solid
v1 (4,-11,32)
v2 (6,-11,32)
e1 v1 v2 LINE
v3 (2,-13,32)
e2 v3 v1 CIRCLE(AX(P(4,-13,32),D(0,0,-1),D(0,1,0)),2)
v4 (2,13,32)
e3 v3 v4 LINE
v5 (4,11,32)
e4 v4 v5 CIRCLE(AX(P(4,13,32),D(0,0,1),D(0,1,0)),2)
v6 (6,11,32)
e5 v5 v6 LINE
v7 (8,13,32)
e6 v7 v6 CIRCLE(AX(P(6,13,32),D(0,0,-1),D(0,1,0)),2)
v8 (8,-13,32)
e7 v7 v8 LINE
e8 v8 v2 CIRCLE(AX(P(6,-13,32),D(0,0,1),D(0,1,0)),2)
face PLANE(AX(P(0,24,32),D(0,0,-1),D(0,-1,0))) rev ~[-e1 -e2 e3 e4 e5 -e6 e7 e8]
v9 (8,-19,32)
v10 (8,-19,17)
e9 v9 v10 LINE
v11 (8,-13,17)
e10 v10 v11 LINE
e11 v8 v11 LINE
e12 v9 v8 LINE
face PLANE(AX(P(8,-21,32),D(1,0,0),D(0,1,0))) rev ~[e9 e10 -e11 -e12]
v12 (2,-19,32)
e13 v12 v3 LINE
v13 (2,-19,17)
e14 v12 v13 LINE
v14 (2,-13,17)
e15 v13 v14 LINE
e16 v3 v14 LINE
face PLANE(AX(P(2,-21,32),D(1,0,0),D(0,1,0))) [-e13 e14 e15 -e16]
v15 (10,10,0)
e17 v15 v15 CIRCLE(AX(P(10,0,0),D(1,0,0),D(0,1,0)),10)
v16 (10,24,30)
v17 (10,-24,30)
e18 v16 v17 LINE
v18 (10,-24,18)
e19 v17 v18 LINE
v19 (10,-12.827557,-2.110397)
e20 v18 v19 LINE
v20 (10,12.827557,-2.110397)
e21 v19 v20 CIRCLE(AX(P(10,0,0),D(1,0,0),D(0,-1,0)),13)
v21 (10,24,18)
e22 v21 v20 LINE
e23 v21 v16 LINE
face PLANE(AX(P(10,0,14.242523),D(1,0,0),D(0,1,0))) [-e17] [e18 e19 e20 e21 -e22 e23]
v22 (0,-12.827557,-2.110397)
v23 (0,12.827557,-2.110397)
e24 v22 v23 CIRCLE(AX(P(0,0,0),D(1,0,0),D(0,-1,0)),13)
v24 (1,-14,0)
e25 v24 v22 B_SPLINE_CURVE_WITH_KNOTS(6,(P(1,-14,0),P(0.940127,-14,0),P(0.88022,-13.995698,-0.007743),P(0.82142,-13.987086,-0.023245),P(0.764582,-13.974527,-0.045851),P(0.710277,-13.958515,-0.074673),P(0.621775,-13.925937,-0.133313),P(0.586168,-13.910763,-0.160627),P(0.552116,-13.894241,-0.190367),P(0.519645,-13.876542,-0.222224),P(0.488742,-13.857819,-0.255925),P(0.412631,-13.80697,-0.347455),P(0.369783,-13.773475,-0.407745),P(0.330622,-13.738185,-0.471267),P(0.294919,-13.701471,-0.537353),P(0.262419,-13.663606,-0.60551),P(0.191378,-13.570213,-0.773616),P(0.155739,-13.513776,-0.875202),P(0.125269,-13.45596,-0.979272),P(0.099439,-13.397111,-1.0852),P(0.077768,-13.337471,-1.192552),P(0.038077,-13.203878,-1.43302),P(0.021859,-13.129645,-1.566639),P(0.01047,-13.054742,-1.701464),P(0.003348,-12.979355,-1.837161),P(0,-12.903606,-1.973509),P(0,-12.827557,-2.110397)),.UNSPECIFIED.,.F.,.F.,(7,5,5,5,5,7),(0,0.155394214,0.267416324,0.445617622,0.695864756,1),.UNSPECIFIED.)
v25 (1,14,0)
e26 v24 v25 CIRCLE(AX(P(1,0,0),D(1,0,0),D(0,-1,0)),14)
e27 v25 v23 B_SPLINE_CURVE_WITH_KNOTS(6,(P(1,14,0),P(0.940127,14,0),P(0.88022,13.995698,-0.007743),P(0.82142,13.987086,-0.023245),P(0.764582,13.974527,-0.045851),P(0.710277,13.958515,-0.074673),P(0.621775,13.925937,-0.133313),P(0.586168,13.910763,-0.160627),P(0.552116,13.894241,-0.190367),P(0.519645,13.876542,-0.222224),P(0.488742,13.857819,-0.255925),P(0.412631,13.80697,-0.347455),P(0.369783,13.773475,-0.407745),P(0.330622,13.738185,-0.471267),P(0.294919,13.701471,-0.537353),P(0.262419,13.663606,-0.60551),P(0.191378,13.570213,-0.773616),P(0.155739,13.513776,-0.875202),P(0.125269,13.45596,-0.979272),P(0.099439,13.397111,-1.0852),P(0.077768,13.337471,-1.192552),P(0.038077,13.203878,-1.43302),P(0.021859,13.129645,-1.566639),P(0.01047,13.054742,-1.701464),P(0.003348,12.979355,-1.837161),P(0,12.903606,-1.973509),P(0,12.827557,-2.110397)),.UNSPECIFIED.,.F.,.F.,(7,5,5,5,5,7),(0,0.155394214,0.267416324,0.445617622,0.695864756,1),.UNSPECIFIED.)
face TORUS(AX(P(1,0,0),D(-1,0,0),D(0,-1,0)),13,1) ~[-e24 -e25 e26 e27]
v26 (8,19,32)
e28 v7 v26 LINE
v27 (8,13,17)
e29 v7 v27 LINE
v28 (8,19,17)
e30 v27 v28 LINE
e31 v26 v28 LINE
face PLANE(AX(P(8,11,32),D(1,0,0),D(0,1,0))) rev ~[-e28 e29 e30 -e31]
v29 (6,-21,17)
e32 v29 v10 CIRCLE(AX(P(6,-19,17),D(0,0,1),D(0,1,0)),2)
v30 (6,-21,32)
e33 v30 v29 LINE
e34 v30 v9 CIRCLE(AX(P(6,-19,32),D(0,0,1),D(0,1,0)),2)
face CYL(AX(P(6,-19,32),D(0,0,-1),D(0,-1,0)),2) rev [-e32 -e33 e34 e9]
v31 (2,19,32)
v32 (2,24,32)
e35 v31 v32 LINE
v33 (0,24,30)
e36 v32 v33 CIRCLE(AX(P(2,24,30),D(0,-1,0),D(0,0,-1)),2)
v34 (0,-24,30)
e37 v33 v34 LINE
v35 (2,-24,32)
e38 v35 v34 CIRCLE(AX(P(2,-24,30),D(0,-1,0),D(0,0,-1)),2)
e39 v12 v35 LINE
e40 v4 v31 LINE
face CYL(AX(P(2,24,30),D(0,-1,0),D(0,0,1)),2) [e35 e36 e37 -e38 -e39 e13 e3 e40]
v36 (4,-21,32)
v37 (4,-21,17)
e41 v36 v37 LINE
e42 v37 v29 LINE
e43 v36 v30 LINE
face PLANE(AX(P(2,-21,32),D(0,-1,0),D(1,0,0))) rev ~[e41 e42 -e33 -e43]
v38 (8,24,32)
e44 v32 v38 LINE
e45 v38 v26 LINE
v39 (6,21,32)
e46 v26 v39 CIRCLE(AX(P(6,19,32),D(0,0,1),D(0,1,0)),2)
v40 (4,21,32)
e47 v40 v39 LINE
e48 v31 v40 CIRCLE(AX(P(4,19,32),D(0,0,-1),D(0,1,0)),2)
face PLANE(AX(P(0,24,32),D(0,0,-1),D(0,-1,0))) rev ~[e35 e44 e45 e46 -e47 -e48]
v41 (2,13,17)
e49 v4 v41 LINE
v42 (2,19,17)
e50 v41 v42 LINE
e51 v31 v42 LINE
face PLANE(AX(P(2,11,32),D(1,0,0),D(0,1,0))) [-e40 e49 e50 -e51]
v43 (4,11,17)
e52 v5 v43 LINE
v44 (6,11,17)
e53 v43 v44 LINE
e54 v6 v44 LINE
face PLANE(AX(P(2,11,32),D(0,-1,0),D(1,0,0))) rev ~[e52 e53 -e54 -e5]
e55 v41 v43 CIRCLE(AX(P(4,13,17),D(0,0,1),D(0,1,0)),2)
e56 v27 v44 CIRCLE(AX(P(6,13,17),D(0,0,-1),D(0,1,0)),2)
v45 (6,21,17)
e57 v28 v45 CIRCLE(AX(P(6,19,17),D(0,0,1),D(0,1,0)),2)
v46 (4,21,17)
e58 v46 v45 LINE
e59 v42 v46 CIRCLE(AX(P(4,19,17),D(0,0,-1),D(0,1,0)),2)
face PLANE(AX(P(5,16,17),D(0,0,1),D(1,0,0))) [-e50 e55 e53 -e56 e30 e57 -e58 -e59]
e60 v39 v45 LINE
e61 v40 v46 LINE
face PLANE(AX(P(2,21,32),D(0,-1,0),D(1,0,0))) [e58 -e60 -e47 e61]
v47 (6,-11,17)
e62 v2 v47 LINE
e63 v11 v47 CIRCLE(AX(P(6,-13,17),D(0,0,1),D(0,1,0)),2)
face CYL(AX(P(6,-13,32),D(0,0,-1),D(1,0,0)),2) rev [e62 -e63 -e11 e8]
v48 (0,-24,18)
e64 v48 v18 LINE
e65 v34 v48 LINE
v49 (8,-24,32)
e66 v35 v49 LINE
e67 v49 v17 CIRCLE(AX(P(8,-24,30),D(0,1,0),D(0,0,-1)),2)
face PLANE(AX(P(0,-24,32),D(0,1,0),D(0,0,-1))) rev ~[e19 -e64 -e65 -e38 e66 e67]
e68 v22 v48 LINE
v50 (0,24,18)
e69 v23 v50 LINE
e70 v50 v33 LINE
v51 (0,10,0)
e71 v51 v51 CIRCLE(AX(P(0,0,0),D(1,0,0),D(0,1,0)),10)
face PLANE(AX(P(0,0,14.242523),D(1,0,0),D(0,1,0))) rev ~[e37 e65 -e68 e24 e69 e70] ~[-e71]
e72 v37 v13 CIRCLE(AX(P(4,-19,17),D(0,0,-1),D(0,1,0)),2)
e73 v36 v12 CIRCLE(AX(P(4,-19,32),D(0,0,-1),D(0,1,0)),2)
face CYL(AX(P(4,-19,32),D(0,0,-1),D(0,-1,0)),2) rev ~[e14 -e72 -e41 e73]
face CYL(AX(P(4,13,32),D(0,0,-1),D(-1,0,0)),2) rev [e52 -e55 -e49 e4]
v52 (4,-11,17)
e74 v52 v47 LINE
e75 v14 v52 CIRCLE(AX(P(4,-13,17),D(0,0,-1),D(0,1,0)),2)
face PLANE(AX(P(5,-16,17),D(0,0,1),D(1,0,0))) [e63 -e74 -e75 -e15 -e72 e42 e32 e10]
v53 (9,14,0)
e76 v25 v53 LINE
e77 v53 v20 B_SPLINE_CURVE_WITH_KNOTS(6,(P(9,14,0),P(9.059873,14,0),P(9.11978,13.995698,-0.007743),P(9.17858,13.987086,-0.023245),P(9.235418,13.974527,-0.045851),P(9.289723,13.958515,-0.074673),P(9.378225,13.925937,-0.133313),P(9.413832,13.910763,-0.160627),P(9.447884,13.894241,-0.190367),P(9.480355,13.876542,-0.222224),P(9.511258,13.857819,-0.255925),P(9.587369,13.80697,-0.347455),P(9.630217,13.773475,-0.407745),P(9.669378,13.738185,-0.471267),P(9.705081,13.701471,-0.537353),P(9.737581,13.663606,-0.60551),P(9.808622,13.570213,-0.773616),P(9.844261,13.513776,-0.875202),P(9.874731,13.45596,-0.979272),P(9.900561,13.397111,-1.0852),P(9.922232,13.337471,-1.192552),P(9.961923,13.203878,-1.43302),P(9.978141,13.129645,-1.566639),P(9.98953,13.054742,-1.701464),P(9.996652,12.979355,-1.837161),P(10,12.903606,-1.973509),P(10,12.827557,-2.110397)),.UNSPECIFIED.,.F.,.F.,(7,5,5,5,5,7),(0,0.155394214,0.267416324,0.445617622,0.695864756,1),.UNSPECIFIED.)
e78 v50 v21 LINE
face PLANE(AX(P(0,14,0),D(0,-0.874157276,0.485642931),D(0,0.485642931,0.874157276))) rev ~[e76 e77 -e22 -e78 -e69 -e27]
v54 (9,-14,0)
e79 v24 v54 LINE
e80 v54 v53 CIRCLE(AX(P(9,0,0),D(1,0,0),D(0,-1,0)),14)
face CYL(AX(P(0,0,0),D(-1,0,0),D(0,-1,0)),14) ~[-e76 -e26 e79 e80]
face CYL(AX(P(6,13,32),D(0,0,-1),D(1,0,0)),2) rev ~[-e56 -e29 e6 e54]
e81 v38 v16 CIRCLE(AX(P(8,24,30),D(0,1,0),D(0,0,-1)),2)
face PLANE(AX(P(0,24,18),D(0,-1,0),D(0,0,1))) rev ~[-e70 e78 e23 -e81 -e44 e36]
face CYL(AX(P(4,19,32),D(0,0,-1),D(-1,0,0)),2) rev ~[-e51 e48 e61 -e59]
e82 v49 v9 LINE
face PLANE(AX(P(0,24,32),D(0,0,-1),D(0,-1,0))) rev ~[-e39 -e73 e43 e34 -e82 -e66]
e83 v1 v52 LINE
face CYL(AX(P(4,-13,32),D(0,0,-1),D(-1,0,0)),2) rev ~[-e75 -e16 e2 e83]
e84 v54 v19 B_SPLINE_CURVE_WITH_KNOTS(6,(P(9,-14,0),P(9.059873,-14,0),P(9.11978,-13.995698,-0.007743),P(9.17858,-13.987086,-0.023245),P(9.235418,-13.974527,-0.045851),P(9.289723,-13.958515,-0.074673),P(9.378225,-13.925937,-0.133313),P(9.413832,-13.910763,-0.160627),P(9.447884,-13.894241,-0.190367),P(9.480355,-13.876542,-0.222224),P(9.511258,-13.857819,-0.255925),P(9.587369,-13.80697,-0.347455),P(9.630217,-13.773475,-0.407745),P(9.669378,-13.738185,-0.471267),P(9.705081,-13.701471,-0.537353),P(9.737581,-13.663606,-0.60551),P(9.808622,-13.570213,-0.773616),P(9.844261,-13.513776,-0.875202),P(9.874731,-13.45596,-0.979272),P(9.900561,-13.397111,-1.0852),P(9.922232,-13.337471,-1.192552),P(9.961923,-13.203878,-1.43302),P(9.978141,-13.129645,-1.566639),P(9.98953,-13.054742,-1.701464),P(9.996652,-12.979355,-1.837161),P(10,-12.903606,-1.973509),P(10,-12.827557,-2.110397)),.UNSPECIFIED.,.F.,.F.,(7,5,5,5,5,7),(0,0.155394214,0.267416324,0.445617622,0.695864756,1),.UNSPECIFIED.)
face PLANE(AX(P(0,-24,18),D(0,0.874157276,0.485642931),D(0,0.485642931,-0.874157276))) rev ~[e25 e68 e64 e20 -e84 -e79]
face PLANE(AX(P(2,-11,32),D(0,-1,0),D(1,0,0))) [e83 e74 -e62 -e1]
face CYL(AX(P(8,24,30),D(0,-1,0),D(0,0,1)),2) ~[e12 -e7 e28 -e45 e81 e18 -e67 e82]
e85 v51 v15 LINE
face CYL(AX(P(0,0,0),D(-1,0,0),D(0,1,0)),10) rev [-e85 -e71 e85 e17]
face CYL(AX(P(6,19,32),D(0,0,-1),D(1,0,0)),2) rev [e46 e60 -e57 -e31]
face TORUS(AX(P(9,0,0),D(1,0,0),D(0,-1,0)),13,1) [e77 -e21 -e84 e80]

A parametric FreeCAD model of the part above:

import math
import FreeCAD as App
import Part
import Sketcher


def edges_at(feature, points):
    """Names of the edges that pass closest to the given points."""
    edges = feature.Shape.Edges
    near = lambda p: min(range(len(edges)), key=lambda i: edges[i].distToShape(Part.Vertex(*p))[0])
    return sorted({f"Edge{near(p) + 1}" for p in points})


def add_polygon(sketch, points):
    """Adds a closed chain of lines whose ends are joined by coincident constraints."""
    first, n = sketch.GeometryCount, len(points)
    for a, b in zip(points, points[1:] + points[:1]):
        sketch.addGeometry(Part.LineSegment(App.Vector(*a, 0), App.Vector(*b, 0)), False)
    for i in range(n):
        sketch.addConstraint(Sketcher.Constraint("Coincident", first + i, 2, first + (i + 1) % n, 1))

doc = App.newDocument("Part")
body = doc.addObject("PartDesign::Body", "Body")

sketch1 = doc.addObject("Sketcher::SketchObject", "Sketch")
body.addObject(sketch1)
sketch1.AttachmentSupport = (doc.YZ_Plane, [""])
sketch1.MapMode = "FlatFace"
sketch1.addGeometry([
    Part.LineSegment(App.Vector(24, 32, 0), App.Vector(-24, 32, 0)),
    Part.LineSegment(App.Vector(-24, 32, 0), App.Vector(-24, 18, 0)),
    Part.LineSegment(App.Vector(-24, 18, 0), App.Vector(-14, 0, 0)),
    Part.ArcOfCircle(Part.Circle(App.Vector(0, 0, 0), App.Vector(0, 0, 1), 14), math.radians(180), math.radians(360)),
    Part.LineSegment(App.Vector(14, 0, 0), App.Vector(24, 18, 0)),
    Part.LineSegment(App.Vector(24, 18, 0), App.Vector(24, 32, 0)),
    Part.Circle(App.Vector(0, 0, 0), App.Vector(0, 0, 1), 10),
], False)
sketch1.addConstraint([
    Sketcher.Constraint("Coincident", 0, 2, 1, 1),
    Sketcher.Constraint("Coincident", 1, 2, 2, 1),
    Sketcher.Constraint("Coincident", 2, 2, 3, 1),
    Sketcher.Constraint("Coincident", 3, 2, 4, 1),
    Sketcher.Constraint("Coincident", 4, 2, 5, 1),
    Sketcher.Constraint("Coincident", 5, 2, 0, 1),
    Sketcher.Constraint("Horizontal", 0),
    Sketcher.Constraint("Vertical", 1),
    Sketcher.Constraint("Vertical", 5),
    Sketcher.Constraint("Coincident", 3, 3, -1, 1),
    Sketcher.Constraint("Coincident", 6, 3, -1, 1),
    Sketcher.Constraint("Symmetric", 1, 2, 4, 2, -2),
    Sketcher.Constraint("PointOnObject", 2, 2, -1),
    Sketcher.Constraint("PointOnObject", 3, 2, -1),
    Sketcher.Constraint("Diameter", 6, 20.0),
    Sketcher.Constraint("Radius", 3, 14.0),
    Sketcher.Constraint("DistanceX", 0, 2, 0, 1, 48.0),
    Sketcher.Constraint("DistanceY", 1, 2, 1, 1, 14.0),
    Sketcher.Constraint("DistanceY", -1, 1, 0, 2, 32.0),
])
pad1 = doc.addObject("PartDesign::Pad", "Pad")
body.addObject(pad1)
pad1.Profile = sketch1
pad1.Length = 10
doc.recompute()

fillet = doc.addObject("PartDesign::Fillet", "Fillet")
body.addObject(fillet)
fillet.Base = (pad1, edges_at(pad1, [(0, 0, -14), (10, 0, -14)]))
fillet.Radius = 1
doc.recompute()

fillet2 = doc.addObject("PartDesign::Fillet", "Fillet001")
body.addObject(fillet2)
fillet2.Base = (fillet, edges_at(fillet, [(0, 0, 32), (10, 0, 32)]))
fillet2.Radius = 2

sketch2 = doc.addObject("Sketcher::SketchObject", "Sketch001")
body.addObject(sketch2)
sketch2.AttachmentSupport = (doc.XY_Plane, [""])
sketch2.MapMode = "FlatFace"
sketch2.AttachmentOffset = App.Placement(App.Vector(0, 0, 32), App.Rotation())
add_polygon(sketch2, [(2, 21), (2, 11), (8, 11), (8, 21)])
add_polygon(sketch2, [(2, -11), (2, -21), (8, -21), (8, -11)])
sketch2.addConstraint([
    Sketcher.Constraint("Vertical", 0),
    Sketcher.Constraint("Horizontal", 1),
    Sketcher.Constraint("Vertical", 2),
    Sketcher.Constraint("Horizontal", 3),
    Sketcher.Constraint("Vertical", 4),
    Sketcher.Constraint("Horizontal", 5),
    Sketcher.Constraint("Vertical", 6),
    Sketcher.Constraint("Horizontal", 7),
    Sketcher.Constraint("Symmetric", 3, 2, 4, 2, -1),
    Sketcher.Constraint("Symmetric", 1, 2, 6, 2, -1),
    Sketcher.Constraint("DistanceX", 1, 1, 1, 2, 6.0),
    Sketcher.Constraint("DistanceY", 0, 2, 0, 1, 10.0),
    Sketcher.Constraint("DistanceX", -1, 1, 0, 2, 2.0),
    Sketcher.Constraint("DistanceY", -1, 1, 0, 2, 11.0),
])
pocket1 = doc.addObject("PartDesign::Pocket", "Pocket")
body.addObject(pocket1)
pocket1.Profile = sketch2
pocket1.Length = 15
doc.recompute()

fillet3 = doc.addObject("PartDesign::Fillet", "Fillet002")
body.addObject(fillet3)
fillet3.Base = (pocket1, edges_at(pocket1, [
    (2, 21, 24.5),
    (8, 21, 24.5),
    (8, 11, 24.5),
    (2, 11, 24.5),
    (2, -21, 24.5),
    (8, -21, 24.5),
    (8, -11, 24.5),
    (2, -11, 24.5),
]))
fillet3.Radius = 2

doc.recompute()
